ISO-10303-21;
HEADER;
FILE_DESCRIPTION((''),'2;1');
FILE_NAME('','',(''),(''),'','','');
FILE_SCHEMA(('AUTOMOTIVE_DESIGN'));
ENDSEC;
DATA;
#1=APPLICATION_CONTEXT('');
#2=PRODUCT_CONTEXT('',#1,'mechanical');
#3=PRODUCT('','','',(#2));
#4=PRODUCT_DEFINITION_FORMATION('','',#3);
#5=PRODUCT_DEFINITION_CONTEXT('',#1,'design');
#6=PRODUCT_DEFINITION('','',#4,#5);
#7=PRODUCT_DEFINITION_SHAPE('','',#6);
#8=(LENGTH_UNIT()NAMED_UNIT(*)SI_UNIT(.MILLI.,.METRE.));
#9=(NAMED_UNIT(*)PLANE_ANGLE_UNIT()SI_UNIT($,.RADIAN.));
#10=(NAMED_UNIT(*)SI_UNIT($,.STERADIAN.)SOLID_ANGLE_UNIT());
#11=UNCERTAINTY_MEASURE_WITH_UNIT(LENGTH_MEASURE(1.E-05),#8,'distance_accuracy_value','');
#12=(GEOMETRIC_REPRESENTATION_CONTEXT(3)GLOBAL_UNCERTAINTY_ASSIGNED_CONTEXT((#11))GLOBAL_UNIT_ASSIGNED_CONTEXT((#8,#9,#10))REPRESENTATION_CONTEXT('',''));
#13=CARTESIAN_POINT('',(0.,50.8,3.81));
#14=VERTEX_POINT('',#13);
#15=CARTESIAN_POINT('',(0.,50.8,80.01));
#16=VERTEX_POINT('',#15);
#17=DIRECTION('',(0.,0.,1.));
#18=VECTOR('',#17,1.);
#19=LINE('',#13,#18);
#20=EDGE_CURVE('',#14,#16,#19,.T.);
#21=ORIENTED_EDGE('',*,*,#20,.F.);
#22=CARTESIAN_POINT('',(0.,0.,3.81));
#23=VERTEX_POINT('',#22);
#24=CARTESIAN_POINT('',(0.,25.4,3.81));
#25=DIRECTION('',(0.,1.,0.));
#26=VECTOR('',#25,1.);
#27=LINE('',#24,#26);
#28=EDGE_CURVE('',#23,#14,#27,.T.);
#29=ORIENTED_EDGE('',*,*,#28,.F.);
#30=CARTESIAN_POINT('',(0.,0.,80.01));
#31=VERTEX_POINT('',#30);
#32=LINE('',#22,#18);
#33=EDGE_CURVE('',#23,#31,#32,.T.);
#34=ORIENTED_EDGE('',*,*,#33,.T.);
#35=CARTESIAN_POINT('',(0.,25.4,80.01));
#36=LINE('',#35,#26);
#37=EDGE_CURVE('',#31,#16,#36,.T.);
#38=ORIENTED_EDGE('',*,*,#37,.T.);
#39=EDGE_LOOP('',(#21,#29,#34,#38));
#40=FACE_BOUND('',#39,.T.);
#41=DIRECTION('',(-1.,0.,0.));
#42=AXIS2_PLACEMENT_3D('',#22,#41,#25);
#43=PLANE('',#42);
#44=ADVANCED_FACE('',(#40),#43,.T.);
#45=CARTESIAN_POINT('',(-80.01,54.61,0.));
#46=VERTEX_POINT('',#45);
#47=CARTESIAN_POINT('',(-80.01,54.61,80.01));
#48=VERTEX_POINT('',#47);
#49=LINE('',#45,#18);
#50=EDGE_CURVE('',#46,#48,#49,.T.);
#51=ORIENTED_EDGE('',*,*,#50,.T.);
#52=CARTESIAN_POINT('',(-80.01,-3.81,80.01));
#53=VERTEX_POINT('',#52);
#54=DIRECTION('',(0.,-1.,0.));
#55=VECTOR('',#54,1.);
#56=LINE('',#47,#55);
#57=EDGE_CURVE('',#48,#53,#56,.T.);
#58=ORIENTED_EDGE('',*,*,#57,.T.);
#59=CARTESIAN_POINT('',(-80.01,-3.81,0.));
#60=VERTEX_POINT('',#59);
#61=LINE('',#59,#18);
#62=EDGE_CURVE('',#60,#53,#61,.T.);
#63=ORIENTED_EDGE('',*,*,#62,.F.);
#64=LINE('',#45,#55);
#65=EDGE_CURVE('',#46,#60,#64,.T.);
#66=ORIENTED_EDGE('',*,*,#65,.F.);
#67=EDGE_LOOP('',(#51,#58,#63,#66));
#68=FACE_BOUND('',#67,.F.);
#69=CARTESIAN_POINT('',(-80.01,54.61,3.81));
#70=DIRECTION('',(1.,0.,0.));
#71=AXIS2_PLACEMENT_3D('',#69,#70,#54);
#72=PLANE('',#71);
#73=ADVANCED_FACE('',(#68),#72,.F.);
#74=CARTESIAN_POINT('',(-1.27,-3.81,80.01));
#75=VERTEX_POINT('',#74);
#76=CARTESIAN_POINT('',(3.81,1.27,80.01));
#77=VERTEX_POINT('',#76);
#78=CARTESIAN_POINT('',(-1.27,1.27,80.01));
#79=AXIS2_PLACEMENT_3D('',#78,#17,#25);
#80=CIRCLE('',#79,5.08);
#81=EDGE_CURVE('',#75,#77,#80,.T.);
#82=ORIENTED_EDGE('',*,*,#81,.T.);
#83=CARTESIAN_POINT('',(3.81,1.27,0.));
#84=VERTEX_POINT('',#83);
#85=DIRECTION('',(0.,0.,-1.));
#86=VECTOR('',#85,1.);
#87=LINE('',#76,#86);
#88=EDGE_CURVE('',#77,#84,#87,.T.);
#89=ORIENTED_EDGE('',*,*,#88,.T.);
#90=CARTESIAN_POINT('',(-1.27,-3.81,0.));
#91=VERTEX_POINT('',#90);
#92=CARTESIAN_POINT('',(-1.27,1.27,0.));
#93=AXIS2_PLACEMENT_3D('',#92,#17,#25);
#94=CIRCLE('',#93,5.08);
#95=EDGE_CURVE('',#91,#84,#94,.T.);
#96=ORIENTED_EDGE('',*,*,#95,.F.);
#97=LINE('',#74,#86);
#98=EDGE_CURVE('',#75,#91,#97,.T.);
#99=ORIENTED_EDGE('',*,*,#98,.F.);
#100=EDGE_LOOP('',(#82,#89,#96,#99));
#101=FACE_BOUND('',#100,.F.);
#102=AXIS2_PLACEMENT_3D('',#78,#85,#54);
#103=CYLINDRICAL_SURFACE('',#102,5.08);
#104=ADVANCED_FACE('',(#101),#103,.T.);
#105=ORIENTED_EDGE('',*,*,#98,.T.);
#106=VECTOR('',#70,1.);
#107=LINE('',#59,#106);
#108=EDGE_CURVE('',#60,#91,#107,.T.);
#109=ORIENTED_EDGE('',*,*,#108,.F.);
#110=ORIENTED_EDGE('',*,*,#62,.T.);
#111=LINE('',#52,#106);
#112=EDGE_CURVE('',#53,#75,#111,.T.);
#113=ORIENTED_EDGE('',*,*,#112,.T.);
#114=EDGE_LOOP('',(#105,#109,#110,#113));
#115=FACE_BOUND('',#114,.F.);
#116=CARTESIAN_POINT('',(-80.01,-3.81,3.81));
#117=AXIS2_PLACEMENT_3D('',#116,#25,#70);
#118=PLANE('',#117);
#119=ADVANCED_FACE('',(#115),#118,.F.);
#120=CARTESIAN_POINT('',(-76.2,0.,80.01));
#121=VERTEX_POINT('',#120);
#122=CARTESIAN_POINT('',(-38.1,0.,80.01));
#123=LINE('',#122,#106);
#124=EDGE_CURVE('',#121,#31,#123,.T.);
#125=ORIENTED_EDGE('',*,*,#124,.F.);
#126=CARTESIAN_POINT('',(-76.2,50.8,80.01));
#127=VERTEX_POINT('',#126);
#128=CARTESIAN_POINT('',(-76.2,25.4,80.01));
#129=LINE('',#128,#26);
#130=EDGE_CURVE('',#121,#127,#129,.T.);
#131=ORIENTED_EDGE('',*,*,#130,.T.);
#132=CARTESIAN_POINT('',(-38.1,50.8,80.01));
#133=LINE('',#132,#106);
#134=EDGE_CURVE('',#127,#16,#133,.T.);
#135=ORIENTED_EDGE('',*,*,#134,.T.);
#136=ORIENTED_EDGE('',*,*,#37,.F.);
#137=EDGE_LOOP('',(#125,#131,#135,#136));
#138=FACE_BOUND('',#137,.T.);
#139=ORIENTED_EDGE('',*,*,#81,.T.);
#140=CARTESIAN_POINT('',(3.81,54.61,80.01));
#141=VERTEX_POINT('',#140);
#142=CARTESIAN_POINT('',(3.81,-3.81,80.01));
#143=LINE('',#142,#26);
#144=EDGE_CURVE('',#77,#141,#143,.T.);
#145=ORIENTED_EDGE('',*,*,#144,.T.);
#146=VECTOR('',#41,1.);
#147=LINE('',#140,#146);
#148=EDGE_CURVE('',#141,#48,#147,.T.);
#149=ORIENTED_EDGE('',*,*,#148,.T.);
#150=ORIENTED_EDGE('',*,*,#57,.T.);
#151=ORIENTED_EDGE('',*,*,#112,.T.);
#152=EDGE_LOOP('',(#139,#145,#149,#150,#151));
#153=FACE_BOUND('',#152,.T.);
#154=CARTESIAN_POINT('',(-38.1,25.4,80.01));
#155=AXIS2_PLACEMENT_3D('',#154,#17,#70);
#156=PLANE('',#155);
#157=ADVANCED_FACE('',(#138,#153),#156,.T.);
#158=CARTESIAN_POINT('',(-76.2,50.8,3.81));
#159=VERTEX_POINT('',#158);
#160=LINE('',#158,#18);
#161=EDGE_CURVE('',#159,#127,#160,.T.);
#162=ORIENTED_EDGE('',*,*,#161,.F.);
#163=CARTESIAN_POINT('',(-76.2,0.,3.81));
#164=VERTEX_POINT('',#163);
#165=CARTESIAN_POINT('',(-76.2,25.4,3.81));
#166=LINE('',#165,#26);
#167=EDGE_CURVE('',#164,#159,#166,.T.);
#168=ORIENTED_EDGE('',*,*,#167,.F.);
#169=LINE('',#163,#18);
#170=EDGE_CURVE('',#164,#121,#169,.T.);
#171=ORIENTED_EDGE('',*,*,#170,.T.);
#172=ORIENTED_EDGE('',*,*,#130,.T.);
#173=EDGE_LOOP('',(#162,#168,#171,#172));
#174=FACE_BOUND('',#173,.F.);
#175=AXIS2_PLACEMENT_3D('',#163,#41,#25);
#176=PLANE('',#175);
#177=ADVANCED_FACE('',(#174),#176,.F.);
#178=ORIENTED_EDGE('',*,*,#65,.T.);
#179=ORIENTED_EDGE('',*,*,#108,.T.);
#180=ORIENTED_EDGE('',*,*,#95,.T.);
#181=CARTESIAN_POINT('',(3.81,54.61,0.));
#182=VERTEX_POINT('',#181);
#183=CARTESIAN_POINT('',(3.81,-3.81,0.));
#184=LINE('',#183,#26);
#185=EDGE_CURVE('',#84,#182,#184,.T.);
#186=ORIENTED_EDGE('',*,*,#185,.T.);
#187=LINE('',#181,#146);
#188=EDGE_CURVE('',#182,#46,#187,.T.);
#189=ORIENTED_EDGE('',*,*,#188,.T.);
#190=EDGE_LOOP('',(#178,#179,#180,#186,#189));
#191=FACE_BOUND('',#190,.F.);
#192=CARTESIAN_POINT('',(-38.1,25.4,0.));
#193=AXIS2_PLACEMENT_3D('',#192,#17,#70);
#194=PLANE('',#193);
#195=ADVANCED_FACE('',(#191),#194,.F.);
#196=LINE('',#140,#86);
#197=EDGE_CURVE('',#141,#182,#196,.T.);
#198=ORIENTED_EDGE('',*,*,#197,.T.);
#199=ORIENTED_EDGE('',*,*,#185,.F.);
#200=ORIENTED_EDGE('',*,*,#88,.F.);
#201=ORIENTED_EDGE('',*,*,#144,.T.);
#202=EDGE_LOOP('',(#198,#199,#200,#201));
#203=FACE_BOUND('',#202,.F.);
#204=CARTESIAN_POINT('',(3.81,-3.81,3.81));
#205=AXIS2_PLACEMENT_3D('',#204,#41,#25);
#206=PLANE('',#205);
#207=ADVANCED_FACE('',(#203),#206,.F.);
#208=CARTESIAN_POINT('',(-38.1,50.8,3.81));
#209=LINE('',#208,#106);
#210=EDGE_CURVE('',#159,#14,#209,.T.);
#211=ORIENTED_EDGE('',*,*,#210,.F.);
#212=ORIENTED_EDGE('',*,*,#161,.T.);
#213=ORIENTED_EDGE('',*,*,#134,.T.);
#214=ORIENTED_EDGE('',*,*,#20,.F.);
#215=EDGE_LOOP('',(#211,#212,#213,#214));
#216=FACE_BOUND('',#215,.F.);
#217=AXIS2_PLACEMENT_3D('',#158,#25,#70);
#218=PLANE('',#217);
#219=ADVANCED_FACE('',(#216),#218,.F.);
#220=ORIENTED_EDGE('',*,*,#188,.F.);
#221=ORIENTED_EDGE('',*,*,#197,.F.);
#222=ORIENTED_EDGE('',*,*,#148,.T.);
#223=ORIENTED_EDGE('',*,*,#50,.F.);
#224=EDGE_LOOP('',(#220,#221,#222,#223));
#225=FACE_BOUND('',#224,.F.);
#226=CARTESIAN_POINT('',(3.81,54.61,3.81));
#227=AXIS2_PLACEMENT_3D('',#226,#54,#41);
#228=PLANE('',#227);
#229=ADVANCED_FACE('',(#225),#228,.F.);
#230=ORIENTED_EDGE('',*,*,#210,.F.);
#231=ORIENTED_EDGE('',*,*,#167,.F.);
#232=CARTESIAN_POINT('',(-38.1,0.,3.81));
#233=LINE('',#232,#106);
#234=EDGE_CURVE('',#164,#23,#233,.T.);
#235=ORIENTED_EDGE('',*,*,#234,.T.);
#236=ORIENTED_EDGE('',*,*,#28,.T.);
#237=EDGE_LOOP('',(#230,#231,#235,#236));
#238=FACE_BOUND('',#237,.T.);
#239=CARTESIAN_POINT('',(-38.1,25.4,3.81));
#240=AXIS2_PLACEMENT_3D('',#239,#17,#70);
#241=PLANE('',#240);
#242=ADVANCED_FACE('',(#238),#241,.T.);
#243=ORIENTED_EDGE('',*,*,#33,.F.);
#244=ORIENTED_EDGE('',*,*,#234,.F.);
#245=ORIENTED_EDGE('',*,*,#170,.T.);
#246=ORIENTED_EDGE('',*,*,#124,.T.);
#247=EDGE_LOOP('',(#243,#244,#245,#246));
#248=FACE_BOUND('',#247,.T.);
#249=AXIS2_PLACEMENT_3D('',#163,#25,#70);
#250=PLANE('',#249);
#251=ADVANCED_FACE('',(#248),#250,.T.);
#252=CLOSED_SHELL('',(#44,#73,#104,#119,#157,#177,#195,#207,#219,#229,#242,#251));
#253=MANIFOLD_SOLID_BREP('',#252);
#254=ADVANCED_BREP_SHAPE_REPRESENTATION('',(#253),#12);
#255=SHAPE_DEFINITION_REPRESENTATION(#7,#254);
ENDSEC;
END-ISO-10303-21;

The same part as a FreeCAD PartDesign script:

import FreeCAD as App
import Part
import Sketcher
Q = App.Units.Quantity


def edges_at(feature, points):
    """Names of the edges that pass closest to the given points."""
    edges = feature.Shape.Edges
    near = lambda p: min(range(len(edges)), key=lambda i: edges[i].distToShape(Part.Vertex(*p))[0])
    return sorted({f"Edge{near(p) + 1}" for p in points})

doc = App.newDocument("Part")
params = doc.addObject("Spreadsheet::Sheet", "Params")
for row, (alias, value) in enumerate([
    ("sketch1_width", "3.3 in"),
    ("sketch1_height", "2.3 in"),
    ("pad1_length", "0.15 in"),
    ("sketch2_width", "3 in"),
    ("sketch2_height", "2 in"),
    ("sketch2_width2", "3.3 in"),
    ("sketch2_height2", "2.3 in"),
    ("pad2_length", "3 in"),
    ("fillet_radius", "0.2 in"),
], start=1):
    params.set(f"A{row}", alias)
    params.set(f"B{row}", "=" + value)
    params.setAlias(f"B{row}", alias)

body = doc.addObject("PartDesign::Body", "Body")

# Sketch on XY plane
sketch1 = body.newObject("Sketcher::SketchObject", "Sketch")
sketch1.AttachmentSupport = (doc.getObject("XY_Plane"), [""])
sketch1.MapMode = "FlatFace"
sketch1.addGeometry(Part.LineSegment(App.Vector(-80, 55, 0), App.Vector(-80, -4, 0)), False)
sketch1.addGeometry(Part.LineSegment(App.Vector(-80, -4, 0), App.Vector(4, -4, 0)), False)
sketch1.addGeometry(Part.LineSegment(App.Vector(4, -4, 0), App.Vector(4, 55, 0)), False)
sketch1.addGeometry(Part.LineSegment(App.Vector(4, 55, 0), App.Vector(-80, 55, 0)), False)
sketch1.addConstraint(Sketcher.Constraint("Coincident", 0, 2, 1, 1))
sketch1.addConstraint(Sketcher.Constraint("Coincident", 1, 2, 2, 1))
sketch1.addConstraint(Sketcher.Constraint("Coincident", 2, 2, 3, 1))
sketch1.addConstraint(Sketcher.Constraint("Coincident", 3, 2, 0, 1))
sketch1.addConstraint(Sketcher.Constraint("Vertical", 0))
sketch1.addConstraint(Sketcher.Constraint("Horizontal", 1))
sketch1.addConstraint(Sketcher.Constraint("Vertical", 2))
sketch1.addConstraint(Sketcher.Constraint("Horizontal", 3))
sketch1.addConstraint(Sketcher.Constraint("DistanceX", 1, 1, 1, 2, Q("3.3 in")))
sketch1.addConstraint(Sketcher.Constraint("DistanceY", 0, 2, 0, 1, Q("2.3 in")))
sketch1.addConstraint(Sketcher.Constraint("DistanceX", 0, 2, -1, 1, Q("3.15 in")))
sketch1.addConstraint(Sketcher.Constraint("DistanceY", 0, 2, -1, 1, Q("0.15 in")))
sketch1.setExpression("Constraints[8]", "Params.sketch1_width")
sketch1.setExpression("Constraints[9]", "Params.sketch1_height")
pad1 = body.newObject("PartDesign::Pad", "Pad")
pad1.Profile = sketch1
pad1.setExpression("Length", "Params.pad1_length")

# Sketch on XY plane
sketch2 = body.newObject("Sketcher::SketchObject", "Sketch001")
sketch2.AttachmentSupport = (doc.getObject("XY_Plane"), [""])
sketch2.MapMode = "FlatFace"
sketch2.AttachmentOffset = App.Placement(App.Vector(0, 0, 0.15 * 25.4), App.Rotation())
sketch2.addGeometry(Part.LineSegment(App.Vector(4, 55, 0), App.Vector(-80, 55, 0)), False)
sketch2.addGeometry(Part.LineSegment(App.Vector(-80, 55, 0), App.Vector(-80, -4, 0)), False)
sketch2.addGeometry(Part.LineSegment(App.Vector(-80, -4, 0), App.Vector(4, -4, 0)), False)
sketch2.addGeometry(Part.LineSegment(App.Vector(4, -4, 0), App.Vector(4, 55, 0)), False)
sketch2.addGeometry(Part.LineSegment(App.Vector(0, 0, 0), App.Vector(-76, 0, 0)), False)
sketch2.addGeometry(Part.LineSegment(App.Vector(-76, 0, 0), App.Vector(-76, 51, 0)), False)
sketch2.addGeometry(Part.LineSegment(App.Vector(-76, 51, 0), App.Vector(0, 51, 0)), False)
sketch2.addGeometry(Part.LineSegment(App.Vector(0, 51, 0), App.Vector(0, 0, 0)), False)
sketch2.addConstraint(Sketcher.Constraint("Coincident", 0, 2, 1, 1))
sketch2.addConstraint(Sketcher.Constraint("Coincident", 1, 2, 2, 1))
sketch2.addConstraint(Sketcher.Constraint("Coincident", 2, 2, 3, 1))
sketch2.addConstraint(Sketcher.Constraint("Coincident", 3, 2, 0, 1))
sketch2.addConstraint(Sketcher.Constraint("Coincident", 4, 2, 5, 1))
sketch2.addConstraint(Sketcher.Constraint("Coincident", 5, 2, 6, 1))
sketch2.addConstraint(Sketcher.Constraint("Coincident", 6, 2, 7, 1))
sketch2.addConstraint(Sketcher.Constraint("Coincident", 7, 2, 4, 1))
sketch2.addConstraint(Sketcher.Constraint("Horizontal", 0))
sketch2.addConstraint(Sketcher.Constraint("Vertical", 1))
sketch2.addConstraint(Sketcher.Constraint("Horizontal", 2))
sketch2.addConstraint(Sketcher.Constraint("Vertical", 3))
sketch2.addConstraint(Sketcher.Constraint("Horizontal", 4))
sketch2.addConstraint(Sketcher.Constraint("Vertical", 5))
sketch2.addConstraint(Sketcher.Constraint("Horizontal", 6))
sketch2.addConstraint(Sketcher.Constraint("Vertical", 7))
sketch2.addConstraint(Sketcher.Constraint("Coincident", 7, 2, -1, 1))
sketch2.addConstraint(Sketcher.Constraint("DistanceX", 4, 2, 4, 1, Q("3 in")))
sketch2.addConstraint(Sketcher.Constraint("DistanceY", 5, 1, 5, 2, Q("2 in")))
sketch2.addConstraint(Sketcher.Constraint("DistanceX", 0, 2, 0, 1, Q("3.3 in")))
sketch2.addConstraint(Sketcher.Constraint("DistanceY", 1, 2, 1, 1, Q("2.3 in")))
sketch2.addConstraint(Sketcher.Constraint("DistanceX", 0, 2, -1, 1, Q("3.15 in")))
sketch2.addConstraint(Sketcher.Constraint("DistanceY", -1, 1, 0, 2, Q("2.15 in")))
sketch2.setExpression("Constraints[17]", "Params.sketch2_width")
sketch2.setExpression("Constraints[18]", "Params.sketch2_height")
sketch2.setExpression("Constraints[19]", "Params.sketch2_width2")
sketch2.setExpression("Constraints[20]", "Params.sketch2_height2")
pad2 = body.newObject("PartDesign::Pad", "Pad001")
pad2.Profile = sketch2
pad2.setExpression("Length", "Params.pad2_length")
doc.recompute()

fillet = body.newObject("PartDesign::Fillet", "Fillet")
fillet.Base = (pad2, edges_at(pad2, [(3.81, -3.81, 40.005)]))
fillet.setExpression("Radius", "Params.fillet_radius")

doc.recompute()
